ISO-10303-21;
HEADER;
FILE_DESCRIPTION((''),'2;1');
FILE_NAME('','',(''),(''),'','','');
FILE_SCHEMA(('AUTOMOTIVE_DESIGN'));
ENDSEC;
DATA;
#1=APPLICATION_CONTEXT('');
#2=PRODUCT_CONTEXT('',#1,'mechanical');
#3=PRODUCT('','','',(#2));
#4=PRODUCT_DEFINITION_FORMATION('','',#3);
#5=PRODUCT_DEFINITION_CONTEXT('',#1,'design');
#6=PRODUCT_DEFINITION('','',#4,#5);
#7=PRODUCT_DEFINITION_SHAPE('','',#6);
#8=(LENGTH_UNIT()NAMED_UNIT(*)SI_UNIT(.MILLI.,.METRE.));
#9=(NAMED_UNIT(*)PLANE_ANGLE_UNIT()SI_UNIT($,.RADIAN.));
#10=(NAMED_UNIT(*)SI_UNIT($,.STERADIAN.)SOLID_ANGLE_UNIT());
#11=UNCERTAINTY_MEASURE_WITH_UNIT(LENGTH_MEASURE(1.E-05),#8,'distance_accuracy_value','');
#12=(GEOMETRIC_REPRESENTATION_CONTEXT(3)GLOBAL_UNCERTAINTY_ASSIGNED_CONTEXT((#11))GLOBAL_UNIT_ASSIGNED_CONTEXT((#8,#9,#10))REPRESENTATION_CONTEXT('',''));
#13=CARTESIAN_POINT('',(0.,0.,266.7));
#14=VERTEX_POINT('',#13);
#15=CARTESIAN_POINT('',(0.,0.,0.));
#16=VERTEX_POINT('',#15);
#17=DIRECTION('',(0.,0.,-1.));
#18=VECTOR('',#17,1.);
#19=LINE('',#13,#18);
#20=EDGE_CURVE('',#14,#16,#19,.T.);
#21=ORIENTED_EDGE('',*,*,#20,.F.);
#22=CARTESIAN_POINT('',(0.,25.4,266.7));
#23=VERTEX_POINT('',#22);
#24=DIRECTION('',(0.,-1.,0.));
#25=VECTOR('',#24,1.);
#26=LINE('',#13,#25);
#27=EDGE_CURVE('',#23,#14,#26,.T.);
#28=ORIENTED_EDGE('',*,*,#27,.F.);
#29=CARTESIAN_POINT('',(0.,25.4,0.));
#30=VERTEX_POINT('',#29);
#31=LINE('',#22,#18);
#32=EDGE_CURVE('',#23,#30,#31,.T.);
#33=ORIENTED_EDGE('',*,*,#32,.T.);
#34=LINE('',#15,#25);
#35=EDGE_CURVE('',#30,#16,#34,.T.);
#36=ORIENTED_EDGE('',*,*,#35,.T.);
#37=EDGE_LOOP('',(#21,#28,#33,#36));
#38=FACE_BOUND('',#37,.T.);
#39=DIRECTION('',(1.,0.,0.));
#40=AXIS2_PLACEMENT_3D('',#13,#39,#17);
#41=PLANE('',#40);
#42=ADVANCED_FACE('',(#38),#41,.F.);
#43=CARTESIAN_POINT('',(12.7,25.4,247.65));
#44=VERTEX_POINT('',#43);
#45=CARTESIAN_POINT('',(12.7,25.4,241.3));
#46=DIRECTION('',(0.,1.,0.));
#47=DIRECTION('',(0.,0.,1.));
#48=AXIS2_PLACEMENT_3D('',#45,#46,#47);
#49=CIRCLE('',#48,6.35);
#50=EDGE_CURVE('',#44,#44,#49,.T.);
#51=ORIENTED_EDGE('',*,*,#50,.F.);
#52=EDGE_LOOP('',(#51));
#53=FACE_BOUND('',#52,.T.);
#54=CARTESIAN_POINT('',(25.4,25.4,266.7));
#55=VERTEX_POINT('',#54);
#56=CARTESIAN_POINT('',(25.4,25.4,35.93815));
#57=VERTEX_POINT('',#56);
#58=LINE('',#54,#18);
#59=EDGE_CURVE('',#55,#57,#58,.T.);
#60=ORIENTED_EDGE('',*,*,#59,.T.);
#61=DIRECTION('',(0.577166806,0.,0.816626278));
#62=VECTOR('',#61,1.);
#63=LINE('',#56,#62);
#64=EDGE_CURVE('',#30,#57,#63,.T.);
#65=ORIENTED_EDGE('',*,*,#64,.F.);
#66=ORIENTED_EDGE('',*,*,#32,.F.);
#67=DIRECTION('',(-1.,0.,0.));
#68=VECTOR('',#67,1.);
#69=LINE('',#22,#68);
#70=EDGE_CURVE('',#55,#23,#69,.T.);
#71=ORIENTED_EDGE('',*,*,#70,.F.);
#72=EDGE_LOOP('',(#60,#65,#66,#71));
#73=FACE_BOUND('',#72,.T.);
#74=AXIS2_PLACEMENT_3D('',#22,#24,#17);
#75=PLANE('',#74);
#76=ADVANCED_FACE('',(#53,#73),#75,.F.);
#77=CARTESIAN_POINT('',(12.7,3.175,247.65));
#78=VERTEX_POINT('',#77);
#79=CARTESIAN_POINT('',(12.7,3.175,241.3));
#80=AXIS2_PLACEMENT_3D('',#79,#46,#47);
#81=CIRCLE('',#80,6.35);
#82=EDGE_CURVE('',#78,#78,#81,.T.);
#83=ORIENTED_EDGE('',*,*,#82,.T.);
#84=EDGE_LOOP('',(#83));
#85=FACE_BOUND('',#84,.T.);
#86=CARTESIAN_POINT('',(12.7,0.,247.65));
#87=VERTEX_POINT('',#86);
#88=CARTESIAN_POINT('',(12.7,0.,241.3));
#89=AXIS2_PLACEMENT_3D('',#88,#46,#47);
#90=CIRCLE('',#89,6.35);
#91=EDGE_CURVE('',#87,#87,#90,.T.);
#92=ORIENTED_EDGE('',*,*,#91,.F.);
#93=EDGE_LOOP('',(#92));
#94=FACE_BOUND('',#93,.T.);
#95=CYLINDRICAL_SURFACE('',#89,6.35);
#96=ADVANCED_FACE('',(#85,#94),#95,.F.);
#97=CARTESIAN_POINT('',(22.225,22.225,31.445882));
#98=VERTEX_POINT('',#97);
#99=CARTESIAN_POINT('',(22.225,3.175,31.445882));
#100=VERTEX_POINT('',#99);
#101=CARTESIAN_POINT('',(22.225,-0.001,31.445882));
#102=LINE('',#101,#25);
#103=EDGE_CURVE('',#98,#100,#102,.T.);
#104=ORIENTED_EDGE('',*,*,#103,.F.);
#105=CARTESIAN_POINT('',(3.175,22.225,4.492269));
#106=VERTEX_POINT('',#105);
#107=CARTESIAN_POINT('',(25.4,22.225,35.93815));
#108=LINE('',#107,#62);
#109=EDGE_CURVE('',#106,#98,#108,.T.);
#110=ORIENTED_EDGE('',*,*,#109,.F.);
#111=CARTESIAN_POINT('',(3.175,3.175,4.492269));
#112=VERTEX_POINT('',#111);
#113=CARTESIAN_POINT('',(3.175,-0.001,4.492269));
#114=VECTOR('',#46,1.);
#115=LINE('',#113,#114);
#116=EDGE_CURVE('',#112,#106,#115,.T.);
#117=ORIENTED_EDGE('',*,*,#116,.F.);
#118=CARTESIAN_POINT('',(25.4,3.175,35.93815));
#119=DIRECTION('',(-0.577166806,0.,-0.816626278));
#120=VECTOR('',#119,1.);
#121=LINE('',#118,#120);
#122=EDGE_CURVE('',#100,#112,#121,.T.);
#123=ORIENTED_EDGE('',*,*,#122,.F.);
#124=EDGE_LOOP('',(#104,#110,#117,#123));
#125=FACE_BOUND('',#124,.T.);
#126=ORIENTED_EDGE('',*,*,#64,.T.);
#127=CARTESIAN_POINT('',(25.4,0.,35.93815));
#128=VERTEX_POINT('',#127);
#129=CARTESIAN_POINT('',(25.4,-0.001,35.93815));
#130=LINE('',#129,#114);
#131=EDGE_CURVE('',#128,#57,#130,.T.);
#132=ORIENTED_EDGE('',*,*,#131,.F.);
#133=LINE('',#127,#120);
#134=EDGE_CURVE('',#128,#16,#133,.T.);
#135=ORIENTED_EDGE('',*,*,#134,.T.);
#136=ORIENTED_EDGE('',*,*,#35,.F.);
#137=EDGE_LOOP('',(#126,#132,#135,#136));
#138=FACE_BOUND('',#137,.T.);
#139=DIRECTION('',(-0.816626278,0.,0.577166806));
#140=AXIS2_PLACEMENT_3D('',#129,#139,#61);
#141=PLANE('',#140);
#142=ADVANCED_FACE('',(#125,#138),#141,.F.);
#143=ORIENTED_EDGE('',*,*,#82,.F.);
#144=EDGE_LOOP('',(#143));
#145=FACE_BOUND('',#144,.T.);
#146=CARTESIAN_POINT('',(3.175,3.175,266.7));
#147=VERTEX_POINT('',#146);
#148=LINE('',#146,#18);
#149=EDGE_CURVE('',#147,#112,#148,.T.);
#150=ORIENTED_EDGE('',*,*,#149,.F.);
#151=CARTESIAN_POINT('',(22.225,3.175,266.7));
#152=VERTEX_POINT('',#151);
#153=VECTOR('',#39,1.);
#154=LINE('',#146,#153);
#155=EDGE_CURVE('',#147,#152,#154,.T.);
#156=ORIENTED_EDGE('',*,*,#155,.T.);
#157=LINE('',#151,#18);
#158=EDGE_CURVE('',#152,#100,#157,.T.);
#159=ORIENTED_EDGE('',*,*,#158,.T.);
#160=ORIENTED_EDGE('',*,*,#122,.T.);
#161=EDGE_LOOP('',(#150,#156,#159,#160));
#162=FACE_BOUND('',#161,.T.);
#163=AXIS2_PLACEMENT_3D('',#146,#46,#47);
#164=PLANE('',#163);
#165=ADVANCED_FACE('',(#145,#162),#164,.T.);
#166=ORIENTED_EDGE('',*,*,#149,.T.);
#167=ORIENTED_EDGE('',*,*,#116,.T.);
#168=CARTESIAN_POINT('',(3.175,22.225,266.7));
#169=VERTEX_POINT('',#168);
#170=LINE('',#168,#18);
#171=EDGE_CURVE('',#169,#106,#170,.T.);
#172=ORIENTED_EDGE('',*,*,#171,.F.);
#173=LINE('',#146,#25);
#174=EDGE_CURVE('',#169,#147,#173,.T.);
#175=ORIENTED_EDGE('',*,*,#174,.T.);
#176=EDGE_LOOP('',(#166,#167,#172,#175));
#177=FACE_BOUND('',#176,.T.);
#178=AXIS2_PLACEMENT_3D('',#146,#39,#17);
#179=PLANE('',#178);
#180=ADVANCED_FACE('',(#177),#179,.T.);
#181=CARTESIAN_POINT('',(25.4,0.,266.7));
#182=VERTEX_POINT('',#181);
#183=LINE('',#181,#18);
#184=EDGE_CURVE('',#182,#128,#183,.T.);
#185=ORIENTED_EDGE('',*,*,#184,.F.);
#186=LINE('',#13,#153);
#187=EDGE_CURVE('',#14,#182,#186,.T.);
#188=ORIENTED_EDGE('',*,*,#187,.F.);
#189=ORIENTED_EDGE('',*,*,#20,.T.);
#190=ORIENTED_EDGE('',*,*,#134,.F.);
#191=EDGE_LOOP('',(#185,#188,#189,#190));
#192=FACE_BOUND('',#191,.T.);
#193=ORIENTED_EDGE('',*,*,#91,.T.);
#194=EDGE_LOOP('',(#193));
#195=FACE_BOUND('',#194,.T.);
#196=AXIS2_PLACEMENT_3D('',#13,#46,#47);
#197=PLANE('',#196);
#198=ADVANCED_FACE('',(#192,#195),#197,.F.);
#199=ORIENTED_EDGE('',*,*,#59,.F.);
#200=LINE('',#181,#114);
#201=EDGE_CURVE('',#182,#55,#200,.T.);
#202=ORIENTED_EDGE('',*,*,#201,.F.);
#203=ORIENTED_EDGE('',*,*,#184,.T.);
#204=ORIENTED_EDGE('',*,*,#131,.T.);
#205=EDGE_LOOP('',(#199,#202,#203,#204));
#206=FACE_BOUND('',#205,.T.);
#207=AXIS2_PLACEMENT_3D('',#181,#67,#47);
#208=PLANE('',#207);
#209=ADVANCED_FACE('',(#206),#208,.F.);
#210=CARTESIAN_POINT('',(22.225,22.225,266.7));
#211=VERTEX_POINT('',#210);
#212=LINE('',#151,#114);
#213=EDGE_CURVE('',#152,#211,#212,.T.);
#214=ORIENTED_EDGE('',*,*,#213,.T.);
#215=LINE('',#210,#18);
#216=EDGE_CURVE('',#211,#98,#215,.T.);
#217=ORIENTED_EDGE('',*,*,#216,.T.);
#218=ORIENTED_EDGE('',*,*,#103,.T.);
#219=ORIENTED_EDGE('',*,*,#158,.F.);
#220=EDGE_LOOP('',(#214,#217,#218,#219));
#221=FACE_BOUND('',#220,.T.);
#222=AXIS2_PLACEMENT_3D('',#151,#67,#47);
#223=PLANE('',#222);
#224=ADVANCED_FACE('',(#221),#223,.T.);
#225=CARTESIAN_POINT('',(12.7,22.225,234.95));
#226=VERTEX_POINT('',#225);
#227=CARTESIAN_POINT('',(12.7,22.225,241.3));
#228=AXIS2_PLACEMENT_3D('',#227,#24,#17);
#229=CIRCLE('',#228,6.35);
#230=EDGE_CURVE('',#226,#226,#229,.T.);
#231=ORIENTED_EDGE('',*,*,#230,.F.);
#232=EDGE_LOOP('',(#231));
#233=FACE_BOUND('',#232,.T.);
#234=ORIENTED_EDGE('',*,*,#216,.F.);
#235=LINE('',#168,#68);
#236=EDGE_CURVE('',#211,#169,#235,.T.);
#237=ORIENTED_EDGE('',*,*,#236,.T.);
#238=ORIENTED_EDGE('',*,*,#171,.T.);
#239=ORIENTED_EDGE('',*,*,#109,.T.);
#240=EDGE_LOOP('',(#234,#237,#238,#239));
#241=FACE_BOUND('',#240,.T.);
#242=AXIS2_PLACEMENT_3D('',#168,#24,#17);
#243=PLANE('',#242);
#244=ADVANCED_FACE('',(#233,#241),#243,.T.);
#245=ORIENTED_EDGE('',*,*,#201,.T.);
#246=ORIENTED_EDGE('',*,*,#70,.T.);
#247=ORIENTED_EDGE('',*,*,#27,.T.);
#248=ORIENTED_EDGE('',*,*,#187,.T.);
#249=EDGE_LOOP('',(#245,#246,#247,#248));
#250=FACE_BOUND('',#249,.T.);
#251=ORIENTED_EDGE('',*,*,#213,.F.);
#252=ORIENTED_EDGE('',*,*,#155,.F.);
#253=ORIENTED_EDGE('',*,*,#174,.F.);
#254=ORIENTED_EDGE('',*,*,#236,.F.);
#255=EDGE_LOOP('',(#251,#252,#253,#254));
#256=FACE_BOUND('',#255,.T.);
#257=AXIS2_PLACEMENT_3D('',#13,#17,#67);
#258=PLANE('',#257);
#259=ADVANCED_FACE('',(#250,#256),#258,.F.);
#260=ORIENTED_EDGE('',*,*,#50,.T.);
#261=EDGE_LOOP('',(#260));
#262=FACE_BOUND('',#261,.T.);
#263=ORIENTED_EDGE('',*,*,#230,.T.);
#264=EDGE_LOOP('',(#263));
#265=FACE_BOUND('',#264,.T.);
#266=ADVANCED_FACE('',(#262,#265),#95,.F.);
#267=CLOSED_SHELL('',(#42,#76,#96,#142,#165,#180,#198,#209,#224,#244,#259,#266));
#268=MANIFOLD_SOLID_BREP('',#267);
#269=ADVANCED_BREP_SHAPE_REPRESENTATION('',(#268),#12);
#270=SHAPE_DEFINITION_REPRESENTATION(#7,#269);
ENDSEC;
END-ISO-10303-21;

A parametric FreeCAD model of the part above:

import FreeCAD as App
import Part
import Sketcher
from FreeCAD import Vector
Q = App.Units.Quantity

doc = App.newDocument("Part")
params = doc.addObject("Spreadsheet::Sheet", "Params")
for row, (alias, value) in enumerate([
    ("sketch1_width", "1 in"),
    ("sketch1_width2", "0.75 in"),
    ("pad1_length", "10.5 in"),
    ("sketch2_width", "1 in"),
    ("pocket1_length", "1 in"),
    ("sketch3_diameter", "0.5 in"),
], start=1):
    params.set(f"A{row}", alias)
    params.set(f"B{row}", "=" + value)
    params.setAlias(f"B{row}", alias)

body = doc.addObject("PartDesign::Body", "Body")

sketch1 = body.newObject("Sketcher::SketchObject", "Sketch")
sketch1.AttachmentSupport = (doc.getObject("XY_Plane"), [""])
sketch1.MapMode = "FlatFace"
sketch1.addGeometry([
    Part.LineSegment(Vector(0, 25.4, 0), Vector(0, 0, 0)),
    Part.LineSegment(Vector(0, 0, 0), Vector(25.4, 0, 0)),
    Part.LineSegment(Vector(25.4, 0, 0), Vector(25.4, 25.4, 0)),
    Part.LineSegment(Vector(25.4, 25.4, 0), Vector(0, 25.4, 0)),
    Part.LineSegment(Vector(22.225, 3.175, 0), Vector(3.175, 3.175, 0)),
    Part.LineSegment(Vector(3.175, 3.175, 0), Vector(3.175, 22.225, 0)),
    Part.LineSegment(Vector(3.175, 22.225, 0), Vector(22.225, 22.225, 0)),
    Part.LineSegment(Vector(22.225, 22.225, 0), Vector(22.225, 3.175, 0)),
], False)
sketch1.addConstraint([
    Sketcher.Constraint("Coincident", 0, 2, 1, 1),
    Sketcher.Constraint("Coincident", 1, 2, 2, 1),
    Sketcher.Constraint("Coincident", 2, 2, 3, 1),
    Sketcher.Constraint("Coincident", 3, 2, 0, 1),
    Sketcher.Constraint("Coincident", 4, 2, 5, 1),
    Sketcher.Constraint("Coincident", 5, 2, 6, 1),
    Sketcher.Constraint("Coincident", 6, 2, 7, 1),
    Sketcher.Constraint("Coincident", 7, 2, 4, 1),
    Sketcher.Constraint("Vertical", 0),
    Sketcher.Constraint("Horizontal", 1),
    Sketcher.Constraint("Vertical", 2),
    Sketcher.Constraint("Horizontal", 3),
    Sketcher.Constraint("Horizontal", 4),
    Sketcher.Constraint("Vertical", 5),
    Sketcher.Constraint("Horizontal", 6),
    Sketcher.Constraint("Vertical", 7),
    Sketcher.Constraint("Coincident", 0, 2, -1, 1),
    Sketcher.Constraint("Equal", 3, 0),
    Sketcher.Constraint("Equal", 6, 5),
    Sketcher.Constraint("DistanceX", 1, 1, 1, 2, Q("1 in")),
    Sketcher.Constraint("DistanceX", 4, 2, 4, 1, Q("0.75 in")),
    Sketcher.Constraint("DistanceX", -1, 1, 4, 2, Q("0.125 in")),
    Sketcher.Constraint("DistanceY", -1, 1, 4, 2, Q("0.125 in")),
])
sketch1.setExpression("Constraints[19]", "Params.sketch1_width")
sketch1.setExpression("Constraints[20]", "Params.sketch1_width2")
pad1 = body.newObject("PartDesign::Pad", "Pad")
pad1.Profile = sketch1
pad1.setExpression("Length", "Params.pad1_length")

sketch2 = body.newObject("Sketcher::SketchObject", "Sketch001")
sketch2.AttachmentSupport = (doc.getObject("XZ_Plane"), [""])
sketch2.MapMode = "FlatFace"
sketch2.AttachmentOffset = App.Placement(Vector(0, 0, -1 * 25.4), App.Rotation())
sketch2.addGeometry([
    Part.LineSegment(Vector(0, 0, 0), Vector(25.4, 35.93815, 0)),
    Part.LineSegment(Vector(25.4, 35.93815, 0), Vector(25.4, 0, 0)),
    Part.LineSegment(Vector(25.4, 0, 0), Vector(0, 0, 0)),
], False)
sketch2.addConstraint([
    Sketcher.Constraint("Coincident", 0, 2, 1, 1),
    Sketcher.Constraint("Coincident", 1, 2, 2, 1),
    Sketcher.Constraint("Coincident", 2, 2, 0, 1),
    Sketcher.Constraint("Vertical", 1),
    Sketcher.Constraint("Horizontal", 2),
    Sketcher.Constraint("Coincident", 2, 2, -1, 1),
    Sketcher.Constraint("DistanceX", 2, 2, 2, 1, Q("1 in")),
    Sketcher.Constraint("DistanceY", 1, 2, 1, 1, 35.93815),
])
sketch2.setExpression("Constraints[6]", "Params.sketch2_width")
pocket1 = body.newObject("PartDesign::Pocket", "Pocket")
pocket1.Profile = sketch2
pocket1.setExpression("Length", "Params.pocket1_length")
pocket1.Reversed = True

sketch3 = body.newObject("Sketcher::SketchObject", "Sketch002")
sketch3.AttachmentSupport = (doc.getObject("XZ_Plane"), [""])
sketch3.MapMode = "FlatFace"
sketch3.AttachmentOffset = App.Placement(Vector(0, 0, -1 * 25.4), App.Rotation())
sketch3.addGeometry(Part.Circle(Vector(12.7, 241.3, 0), Vector(0, 0, 1), 6.35), False)
sketch3.addConstraint([
    Sketcher.Constraint("Diameter", 0, Q("0.5 in")),
    Sketcher.Constraint("DistanceX", -1, 1, 0, 3, Q("0.5 in")),
    Sketcher.Constraint("DistanceY", -1, 1, 0, 3, Q("9.5 in")),
])
sketch3.setExpression("Constraints[0]", "Params.sketch3_diameter")
pocket2 = body.newObject("PartDesign::Pocket", "Pocket001")
pocket2.Profile = sketch3
pocket2.Type = "ThroughAll"
pocket2.Reversed = True

doc.recompute()
